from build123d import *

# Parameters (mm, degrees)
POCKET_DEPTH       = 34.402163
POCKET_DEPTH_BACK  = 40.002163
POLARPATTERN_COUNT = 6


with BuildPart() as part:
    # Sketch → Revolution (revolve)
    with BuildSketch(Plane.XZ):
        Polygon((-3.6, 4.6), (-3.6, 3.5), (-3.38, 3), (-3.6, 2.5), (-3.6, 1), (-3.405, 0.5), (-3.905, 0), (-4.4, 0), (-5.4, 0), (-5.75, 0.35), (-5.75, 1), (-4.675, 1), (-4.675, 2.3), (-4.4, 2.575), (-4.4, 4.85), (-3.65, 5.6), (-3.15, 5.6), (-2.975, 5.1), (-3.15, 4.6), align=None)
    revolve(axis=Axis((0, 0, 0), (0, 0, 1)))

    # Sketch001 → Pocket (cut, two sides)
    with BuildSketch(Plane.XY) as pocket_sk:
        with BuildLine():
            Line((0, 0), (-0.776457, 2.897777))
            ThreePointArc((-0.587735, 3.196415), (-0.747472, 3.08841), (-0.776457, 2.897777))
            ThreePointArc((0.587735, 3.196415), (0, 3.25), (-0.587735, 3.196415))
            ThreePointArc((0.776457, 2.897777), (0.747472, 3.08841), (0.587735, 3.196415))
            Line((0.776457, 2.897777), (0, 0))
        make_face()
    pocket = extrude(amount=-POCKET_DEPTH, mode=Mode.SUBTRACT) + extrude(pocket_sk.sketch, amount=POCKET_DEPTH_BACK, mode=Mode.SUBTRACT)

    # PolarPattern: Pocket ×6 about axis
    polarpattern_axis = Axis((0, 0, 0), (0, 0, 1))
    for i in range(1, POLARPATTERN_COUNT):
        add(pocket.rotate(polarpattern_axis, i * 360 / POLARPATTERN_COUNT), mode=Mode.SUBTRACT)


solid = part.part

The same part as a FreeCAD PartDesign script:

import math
import FreeCAD as App
import Part
import Sketcher

V = App.Vector
Q = App.Units.Quantity

doc = App.newDocument("Part")
body = doc.addObject("PartDesign::Body", "Body")

sketch1 = doc.addObject("Sketcher::SketchObject", "Sketch")
body.addObject(sketch1)
sketch1.AttachmentSupport = (doc.XZ_Plane, [""])
sketch1.MapMode = "FlatFace"
sketch1.addGeometry([
    Part.LineSegment(V(-3.6, 3.5, 0), V(-3.6, 4.6, 0)),
    Part.LineSegment(V(-3.6, 4.6, 0), V(-3.15, 4.6, 0)),
    Part.LineSegment(V(-3.15, 4.6, 0), V(-2.98, 5.1, 0)),
    Part.LineSegment(V(-2.98, 5.1, 0), V(-3.15, 5.6, 0)),
    Part.LineSegment(V(-3.15, 5.6, 0), V(-3.65, 5.6, 0)),
    Part.LineSegment(V(-3.65, 5.6, 0), V(-4.4, 4.85, 0)),
    Part.LineSegment(V(-4.4, 4.85, 0), V(-4.4, 2.58, 0)),
    Part.LineSegment(V(-4.4, 2.58, 0), V(-4.67, 2.3, 0)),
    Part.LineSegment(V(-4.67, 2.3, 0), V(-4.67, 1, 0)),
    Part.LineSegment(V(-4.67, 1, 0), V(-5.75, 1, 0)),
    Part.LineSegment(V(-5.75, 1, 0), V(-5.75, 0.35, 0)),
    Part.LineSegment(V(-5.75, 0.35, 0), V(-5.4, 0, 0)),
    Part.LineSegment(V(-5.4, 0, 0), V(-3.9, 0, 0)),
    Part.LineSegment(V(-3.9, 0, 0), V(-3.4, 0.5, 0)),
    Part.LineSegment(V(-3.4, 0.5, 0), V(-3.6, 1, 0)),
    Part.LineSegment(V(-3.6, 1, 0), V(-3.6, 2.5, 0)),
    Part.LineSegment(V(-3.6, 2.5, 0), V(-3.38, 3, 0)),
    Part.LineSegment(V(-3.38, 3, 0), V(-3.6, 3.5, 0)),
], False)
sketch1.addConstraint([
    Sketcher.Constraint("Coincident", 0, 2, 1, 1),
    Sketcher.Constraint("Coincident", 1, 2, 2, 1),
    Sketcher.Constraint("Coincident", 2, 2, 3, 1),
    Sketcher.Constraint("Coincident", 3, 2, 4, 1),
    Sketcher.Constraint("Coincident", 4, 2, 5, 1),
    Sketcher.Constraint("Coincident", 5, 2, 6, 1),
    Sketcher.Constraint("Coincident", 6, 2, 7, 1),
    Sketcher.Constraint("Coincident", 7, 2, 8, 1),
    Sketcher.Constraint("Coincident", 8, 2, 9, 1),
    Sketcher.Constraint("Coincident", 9, 2, 10, 1),
    Sketcher.Constraint("Coincident", 10, 2, 11, 1),
    Sketcher.Constraint("Coincident", 11, 2, 12, 1),
    Sketcher.Constraint("Coincident", 12, 2, 13, 1),
    Sketcher.Constraint("Coincident", 13, 2, 14, 1),
    Sketcher.Constraint("Coincident", 14, 2, 15, 1),
    Sketcher.Constraint("Coincident", 15, 2, 16, 1),
    Sketcher.Constraint("Coincident", 16, 2, 17, 1),
    Sketcher.Constraint("Coincident", 17, 2, 0, 1),
    Sketcher.Constraint("Vertical", 0),
    Sketcher.Constraint("Horizontal", 1),
    Sketcher.Constraint("Horizontal", 4),
    Sketcher.Constraint("Vertical", 6),
    Sketcher.Constraint("Vertical", 8),
    Sketcher.Constraint("Horizontal", 9),
    Sketcher.Constraint("Vertical", 10),
    Sketcher.Constraint("Horizontal", 12),
    Sketcher.Constraint("Vertical", 15),
    Sketcher.Constraint("PointOnObject", 11, 2, -1),
    Sketcher.Constraint("Parallel", 5, 7),
    Sketcher.Constraint("Perpendicular", 7, 11),
    Sketcher.Constraint("Perpendicular", 11, 13),
    Sketcher.Constraint("Horizontal", 9, 2, 14, 2),
    Sketcher.Constraint("Vertical", 1, 2, 3, 2),
    Sketcher.Constraint("Vertical", 0, 2, 14, 2),
    Sketcher.Constraint("Equal", 2, 3),
    Sketcher.Constraint("Equal", 16, 17),
    Sketcher.Constraint("Angle", 5, Q("-135 deg")),
    Sketcher.Constraint("DistanceX", 4, 2, 4, 1, 0.5),
    Sketcher.Constraint("DistanceY", 0, 1, 0, 2, 1.1),
    Sketcher.Constraint("DistanceY", 8, 2, 8, 1, 1.3),
    Sketcher.Constraint("DistanceY", 15, 1, 15, 2, 1.5),
    Sketcher.Constraint("DistanceY", -1, 1, 8, 2, 1.0),
    Sketcher.Constraint("DistanceY", -1, 1, 16, 2, 3.0),
    Sketcher.Constraint("DistanceY", 1, 2, 3, 2, 1.0),
    Sketcher.Constraint("DistanceX", 11, 2, 6, 2, 1.0),
    Sketcher.Constraint("DistanceY", 13, 2, 15, 2, 2.0),
    Sketcher.Constraint("DistanceX", 1, 1, 1, 2, 0.45),
    Sketcher.Constraint("DistanceY", 10, 2, 10, 1, 0.65),
    Sketcher.Constraint("DistanceX", 0, 2, -1, 1, 3.6),
    Sketcher.Constraint("DistanceX", 5, 2, -1, 1, 4.4),
    Sketcher.Constraint("DistanceX", 7, 2, 2, 2, 1.7),
    Sketcher.Constraint("DistanceX", 9, 2, 9, 1, 1.075),
    Sketcher.Constraint("DistanceX", 12, 1, 12, 2, 1.495),
    Sketcher.Constraint("DistanceX", 16, 2, -1, 1, 3.38),
])
revolution = doc.addObject("PartDesign::Revolution", "Revolution")
body.addObject(revolution)
revolution.Profile = sketch1
revolution.ReferenceAxis = (sketch1, ["V_Axis"])
revolution.Angle = 360

sketch2 = doc.addObject("Sketcher::SketchObject", "Sketch001")
body.addObject(sketch2)
sketch2.AttachmentSupport = (doc.XY_Plane, [""])
sketch2.MapMode = "FlatFace"
sketch2.addGeometry([
    Part.LineSegment(V(-0.78, 2.9, 0), V(0, 0, 0)),
    Part.LineSegment(V(0, 0, 0), V(0.78, 2.9, 0)),
    Part.ArcOfCircle(Part.Circle(V(0.54, 2.96, 0), V(0, 0, 1), 0.24), math.radians(-15), math.radians(80)),
    Part.ArcOfCircle(Part.Circle(V(0, 0, 0), V(0, 0, 1), 3.25), math.radians(80), math.radians(100)),
    Part.ArcOfCircle(Part.Circle(V(-0.54, 2.96, 0), V(0, 0, 1), 0.24), math.radians(100), math.radians(195)),
], False)
sketch2.addConstraint([
    Sketcher.Constraint("Coincident", 0, 2, 1, 1),
    Sketcher.Constraint("Coincident", 1, 2, 2, 1),
    Sketcher.Constraint("Coincident", 2, 2, 3, 1),
    Sketcher.Constraint("Coincident", 3, 2, 4, 1),
    Sketcher.Constraint("Coincident", 4, 2, 0, 1),
    Sketcher.Constraint("Coincident", 0, 2, -1, 1),
    Sketcher.Constraint("Equal", 2, 4),
    Sketcher.Constraint("Symmetric", 2, 3, 4, 3, -2),
    Sketcher.Constraint("Horizontal", 2, 2, 3, 2),
    Sketcher.Constraint("Horizontal", 1, 2, 4, 2),
    Sketcher.Constraint("Angle", 0, Q("-75 deg")),
    Sketcher.Constraint("Distance", 0, 3.0),
    Sketcher.Constraint("Radius", 3, 3.250012),
    Sketcher.Constraint("Radius", 2, 0.240386),
    Sketcher.Constraint("DistanceX", -1, 1, 2, 3, 0.544262),
    Sketcher.Constraint("DistanceX", 3, 2, 2, 2, 1.17547),
])
pocket1 = doc.addObject("PartDesign::Pocket", "Pocket")
body.addObject(pocket1)
pocket1.Profile = sketch2
pocket1.Type = "ThroughAll"
pocket1.Midplane = True
doc.recompute()

polarpattern = doc.addObject("PartDesign::PolarPattern", "PolarPattern")
body.addObject(polarpattern)
polarpattern.Originals = [pocket1]
polarpattern.Axis = (doc.Z_Axis, [""])
polarpattern.Angle = 360
polarpattern.Occurrences = 6
body.Tip = polarpattern

doc.recompute()
